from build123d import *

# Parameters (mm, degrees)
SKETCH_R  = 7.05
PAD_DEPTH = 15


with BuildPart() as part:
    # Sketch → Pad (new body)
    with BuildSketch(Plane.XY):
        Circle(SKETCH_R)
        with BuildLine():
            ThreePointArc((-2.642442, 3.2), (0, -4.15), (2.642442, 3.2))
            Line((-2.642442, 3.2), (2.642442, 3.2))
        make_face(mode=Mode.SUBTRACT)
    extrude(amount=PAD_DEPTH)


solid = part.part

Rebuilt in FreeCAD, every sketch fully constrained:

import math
import FreeCAD as App
import Part
import Sketcher
from FreeCAD import Vector
Q = App.Units.Quantity

doc = App.newDocument("Part")
body = doc.addObject("PartDesign::Body", "Body")

# Sketch on XY plane
sketch1 = doc.addObject("Sketcher::SketchObject", "Sketch")
body.addObject(sketch1)
sketch1.AttachmentSupport = (doc.XY_Plane, [""])
sketch1.MapMode = "FlatFace"
sketch1.addGeometry([
    Part.Circle(Vector(0, 0, 0), Vector(0, 0, 1), 7.05),
    Part.ArcOfCircle(Part.Circle(Vector(0, 0, 0), Vector(0, 0, 1), 4.15), math.radians(129.548638), math.radians(410.451362)),
    Part.LineSegment(Vector(-2.642442, 3.2, 0), Vector(2.642442, 3.2, 0)),
], False)
sketch1.addConstraint([
    Sketcher.Constraint("Coincident", 1, 1, 2, 1),
    Sketcher.Constraint("Coincident", 2, 2, 1, 2),
    Sketcher.Constraint("Horizontal", 2),
    Sketcher.Constraint("Coincident", 0, 3, -1, 1),
    Sketcher.Constraint("Coincident", 1, 3, -1, 1),
    Sketcher.Constraint("Diameter", 0, Q("14.1 mm")),
    Sketcher.Constraint("Radius", 1, Q("4.15 mm")),
    Sketcher.Constraint("DistanceY", -1, 1, 1, 1, Q("3.2 mm")),
])
pad1 = doc.addObject("PartDesign::Pad", "Pad")
body.addObject(pad1)
pad1.Profile = sketch1
pad1.Length = 15

doc.recompute()
